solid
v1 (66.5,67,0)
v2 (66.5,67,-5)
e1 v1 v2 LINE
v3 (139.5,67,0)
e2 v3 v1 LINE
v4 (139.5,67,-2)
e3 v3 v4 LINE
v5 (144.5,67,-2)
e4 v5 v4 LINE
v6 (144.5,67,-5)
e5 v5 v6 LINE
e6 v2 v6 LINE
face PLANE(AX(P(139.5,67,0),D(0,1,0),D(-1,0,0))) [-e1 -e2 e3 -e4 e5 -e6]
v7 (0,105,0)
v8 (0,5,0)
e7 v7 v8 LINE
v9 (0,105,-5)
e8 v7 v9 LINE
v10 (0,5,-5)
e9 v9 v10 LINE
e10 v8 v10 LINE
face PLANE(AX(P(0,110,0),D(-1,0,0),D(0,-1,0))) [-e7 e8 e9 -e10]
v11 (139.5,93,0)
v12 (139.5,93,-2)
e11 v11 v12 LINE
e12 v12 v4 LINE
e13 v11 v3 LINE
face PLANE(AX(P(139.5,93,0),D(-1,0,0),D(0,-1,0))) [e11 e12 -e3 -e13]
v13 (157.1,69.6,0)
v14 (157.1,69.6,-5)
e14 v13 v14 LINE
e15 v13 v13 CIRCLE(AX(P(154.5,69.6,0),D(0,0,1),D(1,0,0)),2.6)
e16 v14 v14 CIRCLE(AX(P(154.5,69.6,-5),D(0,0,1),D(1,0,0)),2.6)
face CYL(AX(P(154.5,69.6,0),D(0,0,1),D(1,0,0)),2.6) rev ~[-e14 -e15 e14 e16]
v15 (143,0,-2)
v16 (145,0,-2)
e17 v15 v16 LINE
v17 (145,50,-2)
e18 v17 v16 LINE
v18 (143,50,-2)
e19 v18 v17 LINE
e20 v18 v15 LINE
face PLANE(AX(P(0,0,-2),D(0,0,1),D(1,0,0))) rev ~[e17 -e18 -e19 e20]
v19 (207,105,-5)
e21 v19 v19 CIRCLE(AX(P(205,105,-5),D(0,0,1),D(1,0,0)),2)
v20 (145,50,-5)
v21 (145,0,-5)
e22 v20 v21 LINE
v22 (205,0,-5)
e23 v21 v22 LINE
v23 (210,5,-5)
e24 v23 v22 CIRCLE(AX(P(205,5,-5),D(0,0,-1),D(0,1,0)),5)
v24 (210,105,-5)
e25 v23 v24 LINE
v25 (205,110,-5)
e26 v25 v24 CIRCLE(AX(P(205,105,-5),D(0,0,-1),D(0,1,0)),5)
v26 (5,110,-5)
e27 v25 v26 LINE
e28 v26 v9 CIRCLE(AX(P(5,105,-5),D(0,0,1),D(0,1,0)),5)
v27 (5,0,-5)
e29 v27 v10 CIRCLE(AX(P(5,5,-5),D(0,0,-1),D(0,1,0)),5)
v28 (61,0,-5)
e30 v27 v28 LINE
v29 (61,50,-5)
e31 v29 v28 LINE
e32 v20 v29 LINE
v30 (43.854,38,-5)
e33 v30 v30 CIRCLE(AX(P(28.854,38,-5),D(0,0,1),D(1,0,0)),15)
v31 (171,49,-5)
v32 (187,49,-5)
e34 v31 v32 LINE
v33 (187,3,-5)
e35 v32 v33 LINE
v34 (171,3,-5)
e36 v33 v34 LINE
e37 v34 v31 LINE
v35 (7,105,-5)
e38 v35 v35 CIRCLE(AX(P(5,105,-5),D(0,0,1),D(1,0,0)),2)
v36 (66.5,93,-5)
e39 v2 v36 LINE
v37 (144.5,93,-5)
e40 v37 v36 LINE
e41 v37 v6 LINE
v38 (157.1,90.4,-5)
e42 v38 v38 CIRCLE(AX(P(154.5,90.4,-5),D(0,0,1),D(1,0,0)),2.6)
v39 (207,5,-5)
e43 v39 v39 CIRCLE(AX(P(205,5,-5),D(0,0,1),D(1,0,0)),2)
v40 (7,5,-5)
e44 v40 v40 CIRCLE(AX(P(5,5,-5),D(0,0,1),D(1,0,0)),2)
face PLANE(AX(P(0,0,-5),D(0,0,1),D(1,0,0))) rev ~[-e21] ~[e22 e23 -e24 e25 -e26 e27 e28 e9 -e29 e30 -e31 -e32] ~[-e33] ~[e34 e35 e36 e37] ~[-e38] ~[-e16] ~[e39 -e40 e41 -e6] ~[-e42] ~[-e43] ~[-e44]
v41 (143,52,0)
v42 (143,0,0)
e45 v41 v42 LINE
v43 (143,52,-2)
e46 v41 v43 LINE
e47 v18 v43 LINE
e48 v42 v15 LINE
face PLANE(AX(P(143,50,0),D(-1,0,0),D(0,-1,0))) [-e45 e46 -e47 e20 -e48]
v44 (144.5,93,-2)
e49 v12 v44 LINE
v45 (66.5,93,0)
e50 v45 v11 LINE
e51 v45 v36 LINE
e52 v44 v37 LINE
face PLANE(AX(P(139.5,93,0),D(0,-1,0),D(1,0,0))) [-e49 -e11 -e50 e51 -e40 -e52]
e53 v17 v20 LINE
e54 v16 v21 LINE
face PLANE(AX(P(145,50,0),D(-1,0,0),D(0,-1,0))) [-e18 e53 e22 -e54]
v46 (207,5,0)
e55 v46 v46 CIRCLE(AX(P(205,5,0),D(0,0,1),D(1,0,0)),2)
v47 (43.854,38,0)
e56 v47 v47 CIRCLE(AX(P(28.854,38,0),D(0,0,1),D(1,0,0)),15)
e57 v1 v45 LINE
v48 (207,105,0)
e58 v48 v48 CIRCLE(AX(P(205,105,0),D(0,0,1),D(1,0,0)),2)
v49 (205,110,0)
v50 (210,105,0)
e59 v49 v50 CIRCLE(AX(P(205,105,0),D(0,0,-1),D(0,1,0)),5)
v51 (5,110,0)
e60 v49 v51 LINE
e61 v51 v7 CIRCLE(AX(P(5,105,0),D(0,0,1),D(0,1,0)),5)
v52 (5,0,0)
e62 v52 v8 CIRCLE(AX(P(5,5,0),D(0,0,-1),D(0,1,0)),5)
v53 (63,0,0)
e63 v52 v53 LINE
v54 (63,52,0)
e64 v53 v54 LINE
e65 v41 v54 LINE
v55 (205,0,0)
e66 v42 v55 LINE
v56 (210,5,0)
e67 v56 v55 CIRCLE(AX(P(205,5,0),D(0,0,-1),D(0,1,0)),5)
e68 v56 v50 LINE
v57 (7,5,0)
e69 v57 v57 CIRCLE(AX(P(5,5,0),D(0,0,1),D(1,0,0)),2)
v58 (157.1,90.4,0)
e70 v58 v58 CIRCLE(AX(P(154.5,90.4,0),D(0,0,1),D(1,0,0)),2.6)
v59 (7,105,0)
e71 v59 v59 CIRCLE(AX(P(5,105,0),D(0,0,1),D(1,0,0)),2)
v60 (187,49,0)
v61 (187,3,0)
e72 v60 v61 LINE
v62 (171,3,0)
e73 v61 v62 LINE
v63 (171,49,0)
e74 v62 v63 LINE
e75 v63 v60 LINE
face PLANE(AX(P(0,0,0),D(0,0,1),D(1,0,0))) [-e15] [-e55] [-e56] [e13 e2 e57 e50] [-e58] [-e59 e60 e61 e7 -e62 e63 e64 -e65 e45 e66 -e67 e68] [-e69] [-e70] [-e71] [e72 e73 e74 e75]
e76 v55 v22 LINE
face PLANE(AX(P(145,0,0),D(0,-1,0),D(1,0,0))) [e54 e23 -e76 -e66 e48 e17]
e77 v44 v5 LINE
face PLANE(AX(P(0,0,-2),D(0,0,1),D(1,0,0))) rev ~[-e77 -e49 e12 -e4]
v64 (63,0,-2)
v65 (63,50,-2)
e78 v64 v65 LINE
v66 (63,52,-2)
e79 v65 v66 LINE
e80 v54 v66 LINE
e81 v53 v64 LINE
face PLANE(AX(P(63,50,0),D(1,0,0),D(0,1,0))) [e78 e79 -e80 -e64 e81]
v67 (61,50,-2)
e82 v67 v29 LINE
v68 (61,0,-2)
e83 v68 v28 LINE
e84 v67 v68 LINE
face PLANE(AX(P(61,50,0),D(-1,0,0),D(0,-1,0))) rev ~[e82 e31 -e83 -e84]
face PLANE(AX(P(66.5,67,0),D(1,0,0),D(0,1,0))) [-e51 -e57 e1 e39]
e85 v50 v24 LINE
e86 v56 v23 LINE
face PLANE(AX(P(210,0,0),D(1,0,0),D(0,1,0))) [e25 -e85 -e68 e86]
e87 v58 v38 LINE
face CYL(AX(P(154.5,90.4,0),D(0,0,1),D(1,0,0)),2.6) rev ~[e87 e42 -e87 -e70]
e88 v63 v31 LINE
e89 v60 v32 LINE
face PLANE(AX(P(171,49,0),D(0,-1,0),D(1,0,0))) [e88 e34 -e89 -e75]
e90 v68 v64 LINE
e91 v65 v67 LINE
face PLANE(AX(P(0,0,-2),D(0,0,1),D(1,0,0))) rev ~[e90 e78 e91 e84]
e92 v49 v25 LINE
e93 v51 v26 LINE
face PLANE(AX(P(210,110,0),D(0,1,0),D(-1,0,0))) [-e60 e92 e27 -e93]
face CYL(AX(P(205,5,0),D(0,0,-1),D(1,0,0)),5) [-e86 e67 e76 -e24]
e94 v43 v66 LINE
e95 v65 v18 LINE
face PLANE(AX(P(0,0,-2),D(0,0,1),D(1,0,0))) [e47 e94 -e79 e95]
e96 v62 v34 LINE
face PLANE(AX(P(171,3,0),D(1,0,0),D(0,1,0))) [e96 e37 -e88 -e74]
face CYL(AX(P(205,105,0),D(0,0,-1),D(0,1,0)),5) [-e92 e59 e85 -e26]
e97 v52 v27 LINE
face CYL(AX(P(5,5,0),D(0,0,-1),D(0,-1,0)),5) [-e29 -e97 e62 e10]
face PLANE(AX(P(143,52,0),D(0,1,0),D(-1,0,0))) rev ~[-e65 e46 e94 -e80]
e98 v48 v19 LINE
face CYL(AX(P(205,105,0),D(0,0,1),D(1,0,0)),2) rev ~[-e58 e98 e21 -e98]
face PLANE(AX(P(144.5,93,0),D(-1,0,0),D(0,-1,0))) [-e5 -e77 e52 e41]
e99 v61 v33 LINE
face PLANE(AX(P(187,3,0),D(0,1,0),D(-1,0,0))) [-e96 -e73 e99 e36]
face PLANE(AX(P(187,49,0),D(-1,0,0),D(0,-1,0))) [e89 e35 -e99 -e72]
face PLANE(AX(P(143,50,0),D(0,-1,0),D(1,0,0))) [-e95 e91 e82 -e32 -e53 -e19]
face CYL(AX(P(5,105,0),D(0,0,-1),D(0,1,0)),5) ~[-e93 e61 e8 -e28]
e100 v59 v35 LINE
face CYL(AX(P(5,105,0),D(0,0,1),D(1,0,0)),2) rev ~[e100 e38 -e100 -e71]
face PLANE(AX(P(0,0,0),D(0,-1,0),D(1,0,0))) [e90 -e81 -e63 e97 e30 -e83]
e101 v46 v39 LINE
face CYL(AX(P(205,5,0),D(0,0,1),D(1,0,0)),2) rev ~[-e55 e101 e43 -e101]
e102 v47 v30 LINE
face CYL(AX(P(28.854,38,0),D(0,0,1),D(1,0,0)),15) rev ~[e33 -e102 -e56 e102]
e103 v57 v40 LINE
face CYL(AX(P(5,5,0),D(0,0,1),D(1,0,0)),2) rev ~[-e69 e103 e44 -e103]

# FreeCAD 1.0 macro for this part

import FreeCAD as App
import Part
import Sketcher
Q = App.Units.Quantity


def edges_at(feature, points):
    """Names of the edges that pass closest to the given points."""
    edges = feature.Shape.Edges
    near = lambda p: min(range(len(edges)), key=lambda i: edges[i].distToShape(Part.Vertex(*p))[0])
    return sorted({f"Edge{near(p) + 1}" for p in points})

doc = App.newDocument("Part")
body = doc.addObject("PartDesign::Body", "Body")

# Sketch on XY plane
sketch1 = body.newObject("Sketcher::SketchObject", "Sketch")
sketch1.AttachmentSupport = (doc.getObject("XY_Plane"), [""])
sketch1.MapMode = "FlatFace"
sketch1.addGeometry([
    Part.LineSegment(App.Vector(0, 110, 0), App.Vector(0, 0, 0)),  # 0
    Part.LineSegment(App.Vector(0, 0, 0), App.Vector(61, 0, 0)),  # 1
    Part.LineSegment(App.Vector(61, 0, 0), App.Vector(61, 50, 0)),  # 2
    Part.LineSegment(App.Vector(61, 50, 0), App.Vector(145, 50, 0)),  # 3
    Part.LineSegment(App.Vector(145, 50, 0), App.Vector(145, 0, 0)),  # 4
    Part.LineSegment(App.Vector(145, 0, 0), App.Vector(210, 0, 0)),  # 5
    Part.LineSegment(App.Vector(210, 0, 0), App.Vector(210, 110, 0)),  # 6
    Part.LineSegment(App.Vector(210, 110, 0), App.Vector(0, 110, 0)),  # 7
    Part.Circle(App.Vector(5, 5, 0), App.Vector(0, 0, 1), 2),  # 8
    Part.Circle(App.Vector(28.854, 38, 0), App.Vector(0, 0, 1), 15),  # 9
    Part.Circle(App.Vector(205, 5, 0), App.Vector(0, 0, 1), 2),  # 10
    Part.LineSegment(App.Vector(171, 3, 0), App.Vector(171, 49, 0)),  # 11
    Part.LineSegment(App.Vector(171, 49, 0), App.Vector(187, 49, 0)),  # 12
    Part.LineSegment(App.Vector(187, 49, 0), App.Vector(187, 3, 0)),  # 13
    Part.LineSegment(App.Vector(187, 3, 0), App.Vector(171, 3, 0)),  # 14
    Part.Circle(App.Vector(5, 105, 0), App.Vector(0, 0, 1), 2),  # 15
    Part.LineSegment(App.Vector(66.5, 67, 0), App.Vector(66.5, 93, 0)),  # 16
    Part.LineSegment(App.Vector(66.5, 93, 0), App.Vector(144.5, 93, 0)),  # 17
    Part.LineSegment(App.Vector(144.5, 93, 0), App.Vector(144.5, 67, 0)),  # 18
    Part.LineSegment(App.Vector(144.5, 67, 0), App.Vector(66.5, 67, 0)),  # 19
    Part.Circle(App.Vector(154.5, 69.6, 0), App.Vector(0, 0, 1), 2.6),  # 20
    Part.Circle(App.Vector(154.5, 90.4, 0), App.Vector(0, 0, 1), 2.6),  # 21
    Part.Circle(App.Vector(205, 105, 0), App.Vector(0, 0, 1), 2),  # 22
], False)
sketch1.addConstraint([
    Sketcher.Constraint("Coincident", 0, 2, 1, 1),
    Sketcher.Constraint("Coincident", 1, 2, 2, 1),
    Sketcher.Constraint("Coincident", 2, 2, 3, 1),
    Sketcher.Constraint("Coincident", 3, 2, 4, 1),
    Sketcher.Constraint("Coincident", 4, 2, 5, 1),
    Sketcher.Constraint("Coincident", 5, 2, 6, 1),
    Sketcher.Constraint("Coincident", 6, 2, 7, 1),
    Sketcher.Constraint("Coincident", 7, 2, 0, 1),
    Sketcher.Constraint("Coincident", 11, 2, 12, 1),
    Sketcher.Constraint("Coincident", 12, 2, 13, 1),
    Sketcher.Constraint("Coincident", 13, 2, 14, 1),
    Sketcher.Constraint("Coincident", 14, 2, 11, 1),
    Sketcher.Constraint("Coincident", 16, 2, 17, 1),
    Sketcher.Constraint("Coincident", 17, 2, 18, 1),
    Sketcher.Constraint("Coincident", 18, 2, 19, 1),
    Sketcher.Constraint("Coincident", 19, 2, 16, 1),
    Sketcher.Constraint("Vertical", 0),
    Sketcher.Constraint("Horizontal", 1),
    Sketcher.Constraint("Vertical", 2),
    Sketcher.Constraint("Horizontal", 3),
    Sketcher.Constraint("Vertical", 4),
    Sketcher.Constraint("Horizontal", 5),
    Sketcher.Constraint("Vertical", 6),
    Sketcher.Constraint("Horizontal", 7),
    Sketcher.Constraint("Vertical", 11),
    Sketcher.Constraint("Horizontal", 12),
    Sketcher.Constraint("Vertical", 13),
    Sketcher.Constraint("Horizontal", 14),
    Sketcher.Constraint("Vertical", 16),
    Sketcher.Constraint("Horizontal", 17),
    Sketcher.Constraint("Vertical", 18),
    Sketcher.Constraint("Horizontal", 19),
    Sketcher.Constraint("Coincident", 0, 2, -1, 1),
    Sketcher.Constraint("Equal", 8, 10),
    Sketcher.Constraint("Equal", 10, 15),
    Sketcher.Constraint("Equal", 20, 21),
    Sketcher.Constraint("Equal", 15, 22),
    Sketcher.Constraint("PointOnObject", 4, 2, -1),
    Sketcher.Constraint("Horizontal", 8, 3, 10, 3),
    Sketcher.Constraint("Horizontal", 15, 3, 22, 3),
    Sketcher.Constraint("Vertical", 8, 3, 15, 3),
    Sketcher.Constraint("Vertical", 20, 3, 21, 3),
    Sketcher.Constraint("Vertical", 10, 3, 22, 3),
    Sketcher.Constraint("Diameter", 8, Q("4 mm")),
    Sketcher.Constraint("Diameter", 9, Q("30 mm")),
    Sketcher.Constraint("Diameter", 20, Q("5.2 mm")),
    Sketcher.Constraint("DistanceX", 7, 2, 7, 1, Q("210 mm")),
    Sketcher.Constraint("DistanceX", 12, 1, 12, 2, Q("16 mm")),
    Sketcher.Constraint("DistanceY", 0, 2, 0, 1, Q("110 mm")),
    Sketcher.Constraint("DistanceY", 2, 1, 2, 2, Q("50 mm")),
    Sketcher.Constraint("DistanceY", 16, 1, 16, 2, Q("26 mm")),
    Sketcher.Constraint("DistanceX", -1, 1, 8, 3, Q("5 mm")),
    Sketcher.Constraint("DistanceY", -1, 1, 8, 3, Q("5 mm")),
    Sketcher.Constraint("DistanceY", -1, 1, 9, 3, Q("38 mm")),
    Sketcher.Constraint("DistanceX", 10, 3, 5, 2, Q("5 mm")),
    Sketcher.Constraint("DistanceY", 22, 3, 6, 2, Q("5 mm")),
    Sketcher.Constraint("DistanceX", 3, 2, 11, 2, Q("26 mm")),
    Sketcher.Constraint("DistanceY", 10, 3, 11, 2, Q("44 mm")),
    Sketcher.Constraint("DistanceY", 13, 2, 10, 3, Q("2 mm")),
    Sketcher.Constraint("DistanceX", 17, 2, 21, 3, Q("10 mm")),
    Sketcher.Constraint("DistanceY", 11, 2, 17, 2, Q("44 mm")),
    Sketcher.Constraint("DistanceX", 1, 1, 1, 2, Q("61 mm")),
    Sketcher.Constraint("DistanceX", 3, 1, 3, 2, Q("84 mm")),
    Sketcher.Constraint("DistanceX", 17, 1, 17, 2, Q("78 mm")),
    Sketcher.Constraint("DistanceX", -1, 1, 9, 3, Q("28.854 mm")),
    Sketcher.Constraint("DistanceX", -1, 1, 20, 3, Q("154.5 mm")),
    Sketcher.Constraint("DistanceY", -1, 1, 20, 3, Q("69.6 mm")),
    Sketcher.Constraint("DistanceY", -1, 1, 21, 3, Q("90.4 mm")),
])
pad1 = body.newObject("PartDesign::Pad", "Pad")
pad1.Profile = sketch1
pad1.Length = 5
pad1.Reversed = True

# Sketch on XY plane
sketch2 = body.newObject("Sketcher::SketchObject", "Sketch001")
sketch2.AttachmentSupport = (doc.getObject("XY_Plane"), [""])
sketch2.MapMode = "FlatFace"
sketch2.addGeometry([
    Part.LineSegment(App.Vector(144.5, 93, 0), App.Vector(139.5, 93, 0)),
    Part.LineSegment(App.Vector(139.5, 93, 0), App.Vector(139.5, 67, 0)),
    Part.LineSegment(App.Vector(139.5, 67, 0), App.Vector(144.5, 67, 0)),
    Part.LineSegment(App.Vector(144.5, 67, 0), App.Vector(144.5, 93, 0)),
], False)
sketch2.addConstraint([
    Sketcher.Constraint("Coincident", 0, 2, 1, 1),
    Sketcher.Constraint("Coincident", 1, 2, 2, 1),
    Sketcher.Constraint("Coincident", 2, 2, 3, 1),
    Sketcher.Constraint("Coincident", 3, 2, 0, 1),
    Sketcher.Constraint("Horizontal", 0),
    Sketcher.Constraint("Vertical", 1),
    Sketcher.Constraint("Horizontal", 2),
    Sketcher.Constraint("Vertical", 3),
    Sketcher.Constraint("DistanceX", 0, 2, 0, 1, Q("5 mm")),
    Sketcher.Constraint("DistanceY", 1, 2, 1, 1, Q("26 mm")),
    Sketcher.Constraint("DistanceY", -1, 1, 0, 2, Q("93 mm")),
    Sketcher.Constraint("DistanceX", -1, 1, 0, 2, Q("139.5 mm")),
])
pad2 = body.newObject("PartDesign::Pad", "Pad001")
pad2.Profile = sketch2
pad2.Length = 2
pad2.Reversed = True

# Sketch on XY plane
sketch3 = body.newObject("Sketcher::SketchObject", "Sketch002")
sketch3.AttachmentSupport = (doc.getObject("XY_Plane"), [""])
sketch3.MapMode = "FlatFace"
sketch3.addGeometry([
    Part.LineSegment(App.Vector(61, 50, 0), App.Vector(61, 0, 0)),  # 0
    Part.LineSegment(App.Vector(61, 0, 0), App.Vector(63, 0, 0)),  # 1
    Part.LineSegment(App.Vector(63, 0, 0), App.Vector(63, 50, 0)),  # 2
    Part.LineSegment(App.Vector(63, 50, 0), App.Vector(61, 50, 0)),  # 3
    Part.LineSegment(App.Vector(143, 50, 0), App.Vector(143, 0, 0)),  # 4
    Part.LineSegment(App.Vector(143, 0, 0), App.Vector(145, 0, 0)),  # 5
    Part.LineSegment(App.Vector(145, 0, 0), App.Vector(145, 50, 0)),  # 6
    Part.LineSegment(App.Vector(145, 50, 0), App.Vector(143, 50, 0)),  # 7
], False)
sketch3.addConstraint([
    Sketcher.Constraint("Coincident", 0, 2, 1, 1),
    Sketcher.Constraint("Coincident", 1, 2, 2, 1),
    Sketcher.Constraint("Coincident", 2, 2, 3, 1),
    Sketcher.Constraint("Coincident", 3, 2, 0, 1),
    Sketcher.Constraint("Coincident", 4, 2, 5, 1),
    Sketcher.Constraint("Coincident", 5, 2, 6, 1),
    Sketcher.Constraint("Coincident", 6, 2, 7, 1),
    Sketcher.Constraint("Coincident", 7, 2, 4, 1),
    Sketcher.Constraint("Vertical", 0),
    Sketcher.Constraint("Horizontal", 1),
    Sketcher.Constraint("Vertical", 2),
    Sketcher.Constraint("Horizontal", 3),
    Sketcher.Constraint("Vertical", 4),
    Sketcher.Constraint("Horizontal", 5),
    Sketcher.Constraint("Vertical", 6),
    Sketcher.Constraint("Horizontal", 7),
    Sketcher.Constraint("PointOnObject", 0, 2, -1),
    Sketcher.Constraint("PointOnObject", 4, 2, -1),
    Sketcher.Constraint("Horizontal", 3, 2, 6, 2),
    Sketcher.Constraint("Equal", 3, 5),
    Sketcher.Constraint("DistanceX", 1, 1, 1, 2, Q("2 mm")),
    Sketcher.Constraint("DistanceY", 0, 2, 0, 1, Q("50 mm")),
    Sketcher.Constraint("DistanceX", -1, 1, 1, 2, Q("63 mm")),
    Sketcher.Constraint("DistanceX", 1, 2, 4, 2, Q("80 mm")),
])
pad3 = body.newObject("PartDesign::Pad", "Pad002")
pad3.Profile = sketch3
pad3.Length = 2
pad3.Reversed = True

# Sketch on XY plane
sketch4 = body.newObject("Sketcher::SketchObject", "Sketch003")
sketch4.AttachmentSupport = (doc.getObject("XY_Plane"), [""])
sketch4.MapMode = "FlatFace"
sketch4.addGeometry([
    Part.LineSegment(App.Vector(63, 52, 0), App.Vector(63, 50, 0)),
    Part.LineSegment(App.Vector(63, 50, 0), App.Vector(143, 50, 0)),
    Part.LineSegment(App.Vector(143, 50, 0), App.Vector(143, 52, 0)),
    Part.LineSegment(App.Vector(143, 52, 0), App.Vector(63, 52, 0)),
], False)
sketch4.addConstraint([
    Sketcher.Constraint("Coincident", 0, 2, 1, 1),
    Sketcher.Constraint("Coincident", 1, 2, 2, 1),
    Sketcher.Constraint("Coincident", 2, 2, 3, 1),
    Sketcher.Constraint("Coincident", 3, 2, 0, 1),
    Sketcher.Constraint("Vertical", 0),
    Sketcher.Constraint("Horizontal", 1),
    Sketcher.Constraint("Vertical", 2),
    Sketcher.Constraint("Horizontal", 3),
    Sketcher.Constraint("DistanceX", 1, 1, 1, 2, Q("80 mm")),
    Sketcher.Constraint("DistanceY", 0, 2, 0, 1, Q("2 mm")),
    Sketcher.Constraint("DistanceX", -1, 1, 0, 2, Q("63 mm")),
    Sketcher.Constraint("DistanceY", -1, 1, 0, 2, Q("50 mm")),
])
pocket1 = body.newObject("PartDesign::Pocket", "Pocket")
pocket1.Profile = sketch4
pocket1.Length = 2
doc.recompute()

fillet = body.newObject("PartDesign::Fillet", "Fillet")
fillet.Base = (pocket1, edges_at(pocket1, [
    (0, 0, -2.5),
    (0, 110, -2.5),
    (210, 0, -2.5),
    (210, 110, -2.5),
]))
fillet.Radius = 5

doc.recompute()
